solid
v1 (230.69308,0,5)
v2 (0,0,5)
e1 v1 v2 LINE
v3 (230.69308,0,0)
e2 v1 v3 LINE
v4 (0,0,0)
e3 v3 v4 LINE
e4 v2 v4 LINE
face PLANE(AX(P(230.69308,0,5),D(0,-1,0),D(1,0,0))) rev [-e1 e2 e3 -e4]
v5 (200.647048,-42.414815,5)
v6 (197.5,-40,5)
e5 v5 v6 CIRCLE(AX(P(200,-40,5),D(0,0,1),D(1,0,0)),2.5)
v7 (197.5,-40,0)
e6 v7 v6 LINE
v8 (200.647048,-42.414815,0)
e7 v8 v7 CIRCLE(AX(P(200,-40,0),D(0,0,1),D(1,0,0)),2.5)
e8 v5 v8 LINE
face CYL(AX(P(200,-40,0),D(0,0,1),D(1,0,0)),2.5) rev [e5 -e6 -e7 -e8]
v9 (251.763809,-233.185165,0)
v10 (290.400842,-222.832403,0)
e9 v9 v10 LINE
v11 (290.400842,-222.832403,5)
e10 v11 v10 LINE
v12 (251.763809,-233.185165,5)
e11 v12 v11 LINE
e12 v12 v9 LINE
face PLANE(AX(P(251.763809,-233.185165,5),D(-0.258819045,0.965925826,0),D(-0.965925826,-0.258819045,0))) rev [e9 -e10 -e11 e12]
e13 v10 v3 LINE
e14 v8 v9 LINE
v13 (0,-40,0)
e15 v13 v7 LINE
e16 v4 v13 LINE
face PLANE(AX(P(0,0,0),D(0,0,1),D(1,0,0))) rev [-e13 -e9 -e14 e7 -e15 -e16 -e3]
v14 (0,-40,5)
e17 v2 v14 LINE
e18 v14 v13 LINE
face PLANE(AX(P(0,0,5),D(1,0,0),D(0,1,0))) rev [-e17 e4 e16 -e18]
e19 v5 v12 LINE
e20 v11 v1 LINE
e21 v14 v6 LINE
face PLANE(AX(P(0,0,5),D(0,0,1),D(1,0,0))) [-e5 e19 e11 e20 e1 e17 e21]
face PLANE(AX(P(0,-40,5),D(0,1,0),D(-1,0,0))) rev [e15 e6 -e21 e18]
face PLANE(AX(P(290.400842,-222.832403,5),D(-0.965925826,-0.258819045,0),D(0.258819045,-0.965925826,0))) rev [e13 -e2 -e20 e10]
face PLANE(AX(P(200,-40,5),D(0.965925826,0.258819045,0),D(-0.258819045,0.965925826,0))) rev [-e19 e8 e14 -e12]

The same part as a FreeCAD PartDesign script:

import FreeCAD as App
import Part
import Sketcher

V = App.Vector
Q = App.Units.Quantity

doc = App.newDocument("Part")
params = doc.addObject("Spreadsheet::Sheet", "Params")
for row, (alias, value) in enumerate([
    ("sketch1_width", "200 mm"),
    ("sketch1_height", "40 mm"),
    ("sketch1_length", "200 mm"),
    ("sketch1_length2", "40 mm"),
    ("pad1_length", "5 mm"),
    ("sketch2_diameter", "5 mm"),
], start=1):
    params.set(f"A{row}", alias)
    params.set(f"B{row}", "=" + value)
    params.setAlias(f"B{row}", alias)

body = doc.addObject("PartDesign::Body", "Body")

# Sketch on XY plane
sketch1 = body.newObject("Sketcher::SketchObject", "Sketch")
sketch1.AttachmentSupport = (doc.getObject("XY_Plane"), [""])
sketch1.MapMode = "FlatFace"
sketch1.addGeometry([
    Part.LineSegment(V(0, 0, 0), V(0, -40, 0)),  # 0
    Part.LineSegment(V(0, -40, 0), V(200, -40, 0)),  # 1
    Part.LineSegment(V(200, -40, 0), V(252, -233, 0)),  # 2
    Part.LineSegment(V(252, -233, 0), V(290, -223, 0)),  # 3
    Part.LineSegment(V(290, -223, 0), V(231, 0, 0)),  # 4
    Part.LineSegment(V(231, 0, 0), V(0, 0, 0)),  # 5
], False)
sketch1.addConstraint([
    Sketcher.Constraint("Coincident", 0, 2, 1, 1),
    Sketcher.Constraint("Coincident", 1, 2, 2, 1),
    Sketcher.Constraint("Coincident", 2, 2, 3, 1),
    Sketcher.Constraint("Coincident", 3, 2, 4, 1),
    Sketcher.Constraint("Coincident", 4, 2, 5, 1),
    Sketcher.Constraint("Coincident", 5, 2, 0, 1),
    Sketcher.Constraint("Vertical", 0),
    Sketcher.Constraint("Horizontal", 1),
    Sketcher.Constraint("Horizontal", 5),
    Sketcher.Constraint("Coincident", 5, 2, -1, 1),
    Sketcher.Constraint("Perpendicular", 2, 3),
    Sketcher.Constraint("Perpendicular", 3, 4),
    Sketcher.Constraint("DistanceX", 1, 1, 1, 2, Q("200 mm")),
    Sketcher.Constraint("DistanceY", 0, 2, 0, 1, Q("40 mm")),
    Sketcher.Constraint("Angle", 2, Q("-75 deg")),
    Sketcher.Constraint("Distance", 2, Q("200 mm")),
    Sketcher.Constraint("Distance", 3, Q("40 mm")),
])
sketch1.setExpression("Constraints[12]", "Params.sketch1_width")
sketch1.setExpression("Constraints[13]", "Params.sketch1_height")
sketch1.setExpression("Constraints[15]", "Params.sketch1_length")
sketch1.setExpression("Constraints[16]", "Params.sketch1_length2")
pad1 = body.newObject("PartDesign::Pad", "Pad")
pad1.Profile = sketch1
pad1.setExpression("Length", "Params.pad1_length")

# Sketch on XY plane
sketch2 = body.newObject("Sketcher::SketchObject", "Sketch001")
sketch2.AttachmentSupport = (doc.getObject("XY_Plane"), [""])
sketch2.MapMode = "FlatFace"
sketch2.AttachmentOffset = App.Placement(V(0, 0, 5), App.Rotation())
sketch2.addGeometry(Part.Circle(V(200, -40, 0), V(0, 0, 1), 2.5), False)
sketch2.addConstraint([
    Sketcher.Constraint("Diameter", 0, Q("5 mm")),
    Sketcher.Constraint("DistanceX", -1, 1, 0, 3, Q("200 mm")),
    Sketcher.Constraint("DistanceY", 0, 3, -1, 1, Q("40 mm")),
])
sketch2.setExpression("Constraints[0]", "Params.sketch2_diameter")
pocket1 = body.newObject("PartDesign::Pocket", "Pocket")
pocket1.Profile = sketch2
pocket1.Type = "ThroughAll"

doc.recompute()
